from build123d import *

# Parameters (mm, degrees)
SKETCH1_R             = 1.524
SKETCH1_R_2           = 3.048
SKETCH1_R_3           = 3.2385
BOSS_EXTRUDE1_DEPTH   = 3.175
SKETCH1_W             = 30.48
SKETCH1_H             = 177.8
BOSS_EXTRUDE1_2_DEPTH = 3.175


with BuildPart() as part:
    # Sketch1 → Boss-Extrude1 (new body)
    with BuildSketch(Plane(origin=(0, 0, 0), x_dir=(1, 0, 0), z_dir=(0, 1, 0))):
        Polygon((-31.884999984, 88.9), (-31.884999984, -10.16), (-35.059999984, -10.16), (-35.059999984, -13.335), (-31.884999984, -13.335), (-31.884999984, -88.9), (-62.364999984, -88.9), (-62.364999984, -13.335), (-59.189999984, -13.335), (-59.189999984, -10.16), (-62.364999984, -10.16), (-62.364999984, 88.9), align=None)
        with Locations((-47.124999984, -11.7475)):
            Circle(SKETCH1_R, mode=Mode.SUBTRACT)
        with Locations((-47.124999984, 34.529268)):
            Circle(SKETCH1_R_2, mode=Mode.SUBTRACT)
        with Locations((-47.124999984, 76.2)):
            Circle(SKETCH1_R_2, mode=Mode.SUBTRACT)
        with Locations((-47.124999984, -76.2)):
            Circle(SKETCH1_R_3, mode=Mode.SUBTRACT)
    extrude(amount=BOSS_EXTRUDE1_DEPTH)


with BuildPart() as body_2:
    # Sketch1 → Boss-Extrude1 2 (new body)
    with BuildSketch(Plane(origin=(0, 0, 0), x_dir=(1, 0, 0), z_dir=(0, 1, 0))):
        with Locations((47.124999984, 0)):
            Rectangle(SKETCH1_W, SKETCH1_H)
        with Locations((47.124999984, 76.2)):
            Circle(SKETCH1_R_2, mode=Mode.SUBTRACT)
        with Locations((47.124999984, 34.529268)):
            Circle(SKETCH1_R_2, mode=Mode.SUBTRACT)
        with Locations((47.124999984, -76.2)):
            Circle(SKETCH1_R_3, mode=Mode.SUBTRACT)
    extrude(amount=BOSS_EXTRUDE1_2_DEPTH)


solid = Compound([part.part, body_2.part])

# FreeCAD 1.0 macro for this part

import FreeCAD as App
import Part
import Sketcher
from FreeCAD import Vector
Q = App.Units.Quantity


def add_polygon(sketch, points):
    """Adds a closed chain of lines whose ends are joined by coincident constraints."""
    first, n = sketch.GeometryCount, len(points)
    for a, b in zip(points, points[1:] + points[:1]):
        sketch.addGeometry(Part.LineSegment(App.Vector(*a, 0), App.Vector(*b, 0)), False)
    for i in range(n):
        sketch.addConstraint(Sketcher.Constraint("Coincident", first + i, 2, first + (i + 1) % n, 1))

doc = App.newDocument("Part")
body = doc.addObject("PartDesign::Body", "Body")

# Sketch on XZ plane
sketch1 = body.newObject("Sketcher::SketchObject", "Sketch")
sketch1.AttachmentSupport = (doc.getObject("XZ_Plane"), [""])
sketch1.MapMode = "FlatFace"
add_polygon(sketch1, [(-31.9, 10.2), (-31.9, -88.9), (-62.4, -88.9), (-62.4, 10.2), (-59.2, 10.2), (-59.2, 13.3), (-62.4, 13.3), (-62.4, 88.9), (-31.9, 88.9), (-31.9, 13.3), (-35.1, 13.3), (-35.1, 10.2)])  # lines 0-11
sketch1.addGeometry(Part.Circle(Vector(-47.1, 76.2, 0), Vector(0, 0, 1), 3.2), False)  # 12
sketch1.addGeometry(Part.Circle(Vector(-47.1, 11.7, 0), Vector(0, 0, 1), 1.5), False)  # 13
sketch1.addGeometry(Part.Circle(Vector(-47.1, -34.5, 0), Vector(0, 0, 1), 3), False)  # 14
sketch1.addGeometry(Part.Circle(Vector(-47.1, -76.2, 0), Vector(0, 0, 1), 3), False)  # 15
sketch1.addConstraint([
    Sketcher.Constraint("Vertical", 0),
    Sketcher.Constraint("Horizontal", 1),
    Sketcher.Constraint("Vertical", 2),
    Sketcher.Constraint("Horizontal", 3),
    Sketcher.Constraint("Vertical", 4),
    Sketcher.Constraint("Horizontal", 5),
    Sketcher.Constraint("Vertical", 6),
    Sketcher.Constraint("Horizontal", 7),
    Sketcher.Constraint("Vertical", 8),
    Sketcher.Constraint("Horizontal", 9),
    Sketcher.Constraint("Vertical", 10),
    Sketcher.Constraint("Horizontal", 11),
    Sketcher.Constraint("Equal", 14, 15),
    Sketcher.Constraint("Symmetric", 12, 3, 15, 3, -1),
    Sketcher.Constraint("Symmetric", 1, 2, 6, 2, -1),
    Sketcher.Constraint("Horizontal", 5, 2, 8, 2),
    Sketcher.Constraint("Horizontal", 3, 2, 10, 2),
    Sketcher.Constraint("Vertical", 12, 3, 13, 3),
    Sketcher.Constraint("Vertical", 13, 3, 14, 3),
    Sketcher.Constraint("Vertical", 0, 2, 7, 2),
    Sketcher.Constraint("Equal", 5, 9),
    Sketcher.Constraint("Equal", 11, 4),
    Sketcher.Constraint("Diameter", 13, Q("0.12 in")),
    Sketcher.Constraint("Diameter", 14, Q("0.24 in")),
    Sketcher.Constraint("Diameter", 12, Q("0.255 in")),
    Sketcher.Constraint("DistanceX", 1, 2, 1, 1, Q("1.2 in")),
    Sketcher.Constraint("DistanceY", 0, 2, 0, 1, Q("3.9 in")),
    Sketcher.Constraint("DistanceY", -1, 1, 12, 3, Q("3 in")),
    Sketcher.Constraint("DistanceY", 0, 2, -1, 1, Q("3.5 in")),
    Sketcher.Constraint("DistanceX", 15, 3, 0, 2, Q("0.6 in")),
    Sketcher.Constraint("DistanceX", 3, 1, 3, 2, Q("0.125 in")),
    Sketcher.Constraint("DistanceY", 2, 2, 13, 3, Q("0.0625 in")),
    Sketcher.Constraint("DistanceX", 12, 3, -1, 1, Q("47.125 mm")),
    Sketcher.Constraint("DistanceY", 14, 3, -1, 1, Q("34.529268 mm")),
])
pad1 = body.newObject("PartDesign::Pad", "Pad")
pad1.Profile = sketch1
pad1.Length = Q("0.125 in")
pad1.Reversed = True
body2 = doc.addObject("PartDesign::Body", "Body001")

# Sketch on XZ plane
sketch2 = body2.newObject("Sketcher::SketchObject", "Sketch001")
sketch2.AttachmentSupport = (doc.getObject("XZ_Plane001"), [""])
sketch2.MapMode = "FlatFace"
add_polygon(sketch2, [(31.9, -88.9), (31.9, 88.9), (62.4, 88.9), (62.4, -88.9)])  # lines 0-3
sketch2.addGeometry(Part.Circle(Vector(47.1, 76.2, 0), Vector(0, 0, 1), 3.2), False)  # 4
sketch2.addGeometry(Part.Circle(Vector(47.1, -34.5, 0), Vector(0, 0, 1), 3), False)  # 5
sketch2.addGeometry(Part.Circle(Vector(47.1, -76.2, 0), Vector(0, 0, 1), 3), False)  # 6
sketch2.addConstraint([
    Sketcher.Constraint("Vertical", 0),
    Sketcher.Constraint("Horizontal", 1),
    Sketcher.Constraint("Vertical", 2),
    Sketcher.Constraint("Horizontal", 3),
    Sketcher.Constraint("Equal", 5, 6),
    Sketcher.Constraint("Symmetric", 4, 3, 6, 3, -1),
    Sketcher.Constraint("Vertical", 4, 3, 5, 3),
    Sketcher.Constraint("Diameter", 5, Q("0.24 in")),
    Sketcher.Constraint("DistanceY", 0, 1, 0, 2, Q("7 in")),
    Sketcher.Constraint("Diameter", 4, Q("0.255 in")),
    Sketcher.Constraint("DistanceX", 1, 1, 1, 2, Q("1.2 in")),
    Sketcher.Constraint("DistanceY", -1, 1, 4, 3, Q("3 in")),
    Sketcher.Constraint("DistanceY", -1, 1, 0, 2, Q("3.5 in")),
    Sketcher.Constraint("DistanceX", 0, 2, 4, 3, Q("0.6 in")),
    Sketcher.Constraint("DistanceX", -1, 1, 4, 3, Q("47.125 mm")),
    Sketcher.Constraint("DistanceY", 5, 3, -1, 1, Q("34.529268 mm")),
])
pad2 = body2.newObject("PartDesign::Pad", "Pad001")
pad2.Profile = sketch2
pad2.Length = Q("0.125 in")
pad2.Reversed = True

doc.recompute()
